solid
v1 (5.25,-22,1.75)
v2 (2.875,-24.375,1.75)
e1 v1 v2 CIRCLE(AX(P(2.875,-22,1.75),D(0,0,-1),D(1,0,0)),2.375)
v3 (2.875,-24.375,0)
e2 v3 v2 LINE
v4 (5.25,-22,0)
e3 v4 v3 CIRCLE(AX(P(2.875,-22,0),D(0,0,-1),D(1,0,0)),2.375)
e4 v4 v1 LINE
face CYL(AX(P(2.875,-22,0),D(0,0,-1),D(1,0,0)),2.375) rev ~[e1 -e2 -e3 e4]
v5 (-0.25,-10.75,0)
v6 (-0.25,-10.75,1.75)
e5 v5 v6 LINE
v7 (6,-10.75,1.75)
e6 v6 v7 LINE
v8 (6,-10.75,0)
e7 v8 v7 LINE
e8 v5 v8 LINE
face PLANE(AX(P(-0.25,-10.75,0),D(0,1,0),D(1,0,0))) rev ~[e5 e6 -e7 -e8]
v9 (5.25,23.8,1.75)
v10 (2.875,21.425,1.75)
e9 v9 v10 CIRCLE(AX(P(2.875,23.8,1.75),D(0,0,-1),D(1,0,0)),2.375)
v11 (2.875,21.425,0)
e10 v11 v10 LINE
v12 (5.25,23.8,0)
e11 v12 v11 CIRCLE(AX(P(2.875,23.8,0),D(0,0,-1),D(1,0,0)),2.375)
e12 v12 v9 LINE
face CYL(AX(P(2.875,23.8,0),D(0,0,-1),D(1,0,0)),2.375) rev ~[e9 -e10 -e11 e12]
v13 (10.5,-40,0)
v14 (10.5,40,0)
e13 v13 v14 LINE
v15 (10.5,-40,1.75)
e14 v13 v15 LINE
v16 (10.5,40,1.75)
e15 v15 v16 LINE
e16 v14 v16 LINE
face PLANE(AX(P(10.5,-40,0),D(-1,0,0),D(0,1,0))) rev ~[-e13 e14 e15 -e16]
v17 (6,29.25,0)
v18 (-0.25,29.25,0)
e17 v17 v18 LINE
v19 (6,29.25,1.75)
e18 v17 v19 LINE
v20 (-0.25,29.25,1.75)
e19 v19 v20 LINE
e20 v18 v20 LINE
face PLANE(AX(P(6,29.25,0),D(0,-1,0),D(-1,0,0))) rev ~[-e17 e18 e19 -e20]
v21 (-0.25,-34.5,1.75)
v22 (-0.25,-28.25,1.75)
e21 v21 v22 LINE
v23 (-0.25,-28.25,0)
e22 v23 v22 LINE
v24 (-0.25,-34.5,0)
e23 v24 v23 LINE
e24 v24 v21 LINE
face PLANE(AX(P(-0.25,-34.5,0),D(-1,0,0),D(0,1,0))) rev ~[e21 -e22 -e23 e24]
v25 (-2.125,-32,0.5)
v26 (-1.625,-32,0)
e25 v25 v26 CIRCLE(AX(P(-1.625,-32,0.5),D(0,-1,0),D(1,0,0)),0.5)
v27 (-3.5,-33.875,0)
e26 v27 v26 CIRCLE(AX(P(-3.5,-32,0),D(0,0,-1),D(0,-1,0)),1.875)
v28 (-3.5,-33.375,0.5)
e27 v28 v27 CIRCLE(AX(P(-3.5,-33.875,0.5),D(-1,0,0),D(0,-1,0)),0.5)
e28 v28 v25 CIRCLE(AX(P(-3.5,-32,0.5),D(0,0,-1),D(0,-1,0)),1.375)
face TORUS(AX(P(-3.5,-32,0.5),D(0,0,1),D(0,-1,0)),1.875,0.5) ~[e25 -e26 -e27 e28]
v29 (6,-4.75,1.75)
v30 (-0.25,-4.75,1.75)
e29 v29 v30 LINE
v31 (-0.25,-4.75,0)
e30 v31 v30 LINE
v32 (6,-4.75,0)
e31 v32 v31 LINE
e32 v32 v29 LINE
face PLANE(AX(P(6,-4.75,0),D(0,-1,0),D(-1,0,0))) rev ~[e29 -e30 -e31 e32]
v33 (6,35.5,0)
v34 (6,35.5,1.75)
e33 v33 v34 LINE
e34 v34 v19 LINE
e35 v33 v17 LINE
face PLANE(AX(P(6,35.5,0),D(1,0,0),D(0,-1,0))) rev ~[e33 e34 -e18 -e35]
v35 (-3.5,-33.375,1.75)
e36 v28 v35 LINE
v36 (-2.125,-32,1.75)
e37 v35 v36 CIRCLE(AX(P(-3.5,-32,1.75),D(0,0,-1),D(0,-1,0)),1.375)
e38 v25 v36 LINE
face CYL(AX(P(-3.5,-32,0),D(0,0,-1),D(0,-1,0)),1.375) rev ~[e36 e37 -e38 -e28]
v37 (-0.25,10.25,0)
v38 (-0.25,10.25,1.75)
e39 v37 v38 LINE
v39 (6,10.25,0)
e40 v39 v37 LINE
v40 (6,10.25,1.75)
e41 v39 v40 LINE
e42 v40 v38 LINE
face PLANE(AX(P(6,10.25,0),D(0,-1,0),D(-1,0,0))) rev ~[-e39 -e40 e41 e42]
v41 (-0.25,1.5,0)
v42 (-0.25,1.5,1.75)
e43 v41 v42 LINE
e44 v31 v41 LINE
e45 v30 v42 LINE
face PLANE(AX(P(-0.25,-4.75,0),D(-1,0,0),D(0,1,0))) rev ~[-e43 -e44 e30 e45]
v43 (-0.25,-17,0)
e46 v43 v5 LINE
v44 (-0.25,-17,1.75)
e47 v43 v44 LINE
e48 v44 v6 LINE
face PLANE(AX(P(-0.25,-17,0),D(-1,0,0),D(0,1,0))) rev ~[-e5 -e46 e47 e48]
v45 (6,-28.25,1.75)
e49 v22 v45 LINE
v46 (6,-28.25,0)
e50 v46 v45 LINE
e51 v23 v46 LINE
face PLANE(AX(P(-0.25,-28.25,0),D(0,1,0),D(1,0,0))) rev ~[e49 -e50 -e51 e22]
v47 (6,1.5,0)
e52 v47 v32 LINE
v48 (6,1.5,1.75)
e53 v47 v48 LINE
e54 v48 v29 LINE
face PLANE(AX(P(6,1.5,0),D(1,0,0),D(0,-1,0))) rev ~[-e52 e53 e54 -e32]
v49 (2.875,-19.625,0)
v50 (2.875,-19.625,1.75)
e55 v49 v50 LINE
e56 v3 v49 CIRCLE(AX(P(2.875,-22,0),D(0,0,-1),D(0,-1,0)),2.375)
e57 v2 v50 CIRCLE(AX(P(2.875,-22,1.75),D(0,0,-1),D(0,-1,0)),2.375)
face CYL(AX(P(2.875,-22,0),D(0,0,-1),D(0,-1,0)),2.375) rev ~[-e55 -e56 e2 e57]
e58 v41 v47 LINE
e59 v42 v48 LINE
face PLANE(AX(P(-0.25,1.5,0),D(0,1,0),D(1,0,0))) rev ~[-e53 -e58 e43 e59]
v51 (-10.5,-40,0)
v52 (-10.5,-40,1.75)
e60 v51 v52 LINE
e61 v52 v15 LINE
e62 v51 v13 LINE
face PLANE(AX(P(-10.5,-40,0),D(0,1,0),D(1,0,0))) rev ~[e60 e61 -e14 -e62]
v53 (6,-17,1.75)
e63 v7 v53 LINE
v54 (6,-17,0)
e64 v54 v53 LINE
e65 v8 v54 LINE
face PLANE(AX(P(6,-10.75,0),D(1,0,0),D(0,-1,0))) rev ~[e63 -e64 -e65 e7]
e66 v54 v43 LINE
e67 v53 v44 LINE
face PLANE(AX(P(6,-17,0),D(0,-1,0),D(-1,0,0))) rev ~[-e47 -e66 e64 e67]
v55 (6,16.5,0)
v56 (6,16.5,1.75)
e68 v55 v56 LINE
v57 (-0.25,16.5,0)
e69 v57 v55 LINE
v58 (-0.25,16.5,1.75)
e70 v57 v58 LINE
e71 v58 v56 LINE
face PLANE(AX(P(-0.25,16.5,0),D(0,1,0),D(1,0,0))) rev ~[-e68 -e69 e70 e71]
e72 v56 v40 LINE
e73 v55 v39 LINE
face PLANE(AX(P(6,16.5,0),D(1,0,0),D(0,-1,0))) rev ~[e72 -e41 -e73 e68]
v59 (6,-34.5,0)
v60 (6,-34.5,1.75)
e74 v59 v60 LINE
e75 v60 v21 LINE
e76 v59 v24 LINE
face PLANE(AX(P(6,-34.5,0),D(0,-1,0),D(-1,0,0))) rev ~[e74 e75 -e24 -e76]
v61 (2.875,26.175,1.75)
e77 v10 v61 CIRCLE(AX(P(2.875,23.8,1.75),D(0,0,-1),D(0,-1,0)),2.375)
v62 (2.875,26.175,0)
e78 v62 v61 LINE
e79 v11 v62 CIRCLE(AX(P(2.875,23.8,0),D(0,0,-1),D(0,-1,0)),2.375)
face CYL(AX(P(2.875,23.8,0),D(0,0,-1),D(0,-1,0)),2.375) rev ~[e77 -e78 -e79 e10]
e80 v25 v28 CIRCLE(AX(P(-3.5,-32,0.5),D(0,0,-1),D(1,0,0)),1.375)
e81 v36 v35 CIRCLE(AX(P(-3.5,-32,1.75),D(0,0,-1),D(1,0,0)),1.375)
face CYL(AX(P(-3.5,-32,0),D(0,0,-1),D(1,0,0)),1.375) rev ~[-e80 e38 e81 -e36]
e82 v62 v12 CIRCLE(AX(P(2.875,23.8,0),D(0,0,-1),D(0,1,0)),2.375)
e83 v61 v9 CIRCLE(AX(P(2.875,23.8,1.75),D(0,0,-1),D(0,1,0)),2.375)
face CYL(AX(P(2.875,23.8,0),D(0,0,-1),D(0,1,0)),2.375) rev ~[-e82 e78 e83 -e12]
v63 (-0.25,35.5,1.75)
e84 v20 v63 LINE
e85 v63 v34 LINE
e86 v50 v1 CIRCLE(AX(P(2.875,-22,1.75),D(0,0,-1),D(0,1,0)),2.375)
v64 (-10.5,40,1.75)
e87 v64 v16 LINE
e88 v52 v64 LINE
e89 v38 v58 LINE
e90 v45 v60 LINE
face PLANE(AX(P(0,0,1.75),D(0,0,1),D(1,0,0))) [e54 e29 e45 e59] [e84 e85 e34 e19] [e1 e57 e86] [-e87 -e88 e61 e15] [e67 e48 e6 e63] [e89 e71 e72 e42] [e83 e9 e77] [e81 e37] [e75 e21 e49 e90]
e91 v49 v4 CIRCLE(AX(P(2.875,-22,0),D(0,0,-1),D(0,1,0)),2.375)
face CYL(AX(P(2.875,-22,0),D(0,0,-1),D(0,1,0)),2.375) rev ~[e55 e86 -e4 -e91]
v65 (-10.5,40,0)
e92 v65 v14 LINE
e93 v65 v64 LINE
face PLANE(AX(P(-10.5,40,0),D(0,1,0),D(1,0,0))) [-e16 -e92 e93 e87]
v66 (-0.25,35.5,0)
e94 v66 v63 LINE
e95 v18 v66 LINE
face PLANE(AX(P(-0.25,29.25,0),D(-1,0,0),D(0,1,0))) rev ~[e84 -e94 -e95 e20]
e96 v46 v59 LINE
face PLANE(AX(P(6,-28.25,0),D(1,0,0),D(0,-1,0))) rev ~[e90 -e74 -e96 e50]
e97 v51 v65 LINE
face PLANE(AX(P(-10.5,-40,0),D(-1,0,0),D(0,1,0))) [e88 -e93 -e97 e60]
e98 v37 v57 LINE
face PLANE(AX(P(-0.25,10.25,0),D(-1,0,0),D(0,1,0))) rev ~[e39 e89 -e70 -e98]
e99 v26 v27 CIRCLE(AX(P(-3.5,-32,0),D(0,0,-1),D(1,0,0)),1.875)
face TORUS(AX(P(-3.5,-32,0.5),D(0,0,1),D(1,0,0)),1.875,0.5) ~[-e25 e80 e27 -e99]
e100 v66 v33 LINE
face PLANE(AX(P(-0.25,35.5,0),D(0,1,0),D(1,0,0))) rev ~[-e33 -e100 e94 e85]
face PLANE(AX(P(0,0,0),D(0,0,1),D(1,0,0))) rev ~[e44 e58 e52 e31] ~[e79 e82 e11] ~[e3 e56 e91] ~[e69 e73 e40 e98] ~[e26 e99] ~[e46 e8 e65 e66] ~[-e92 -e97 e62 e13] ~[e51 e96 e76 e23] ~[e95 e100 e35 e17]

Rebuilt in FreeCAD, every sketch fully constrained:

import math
import FreeCAD as App
import Part
import Sketcher


def edges_at(feature, points):
    """Names of the edges that pass closest to the given points."""
    edges = feature.Shape.Edges
    near = lambda p: min(range(len(edges)), key=lambda i: edges[i].distToShape(Part.Vertex(*p))[0])
    return sorted({f"Edge{near(p) + 1}" for p in points})


def add_polygon(sketch, points):
    """Adds a closed chain of lines whose ends are joined by coincident constraints."""
    first, n = sketch.GeometryCount, len(points)
    for a, b in zip(points, points[1:] + points[:1]):
        sketch.addGeometry(Part.LineSegment(App.Vector(*a, 0), App.Vector(*b, 0)), False)
    for i in range(n):
        sketch.addConstraint(Sketcher.Constraint("Coincident", first + i, 2, first + (i + 1) % n, 1))

doc = App.newDocument("Part")
body = doc.addObject("PartDesign::Body", "Body")

sketch1 = body.newObject("Sketcher::SketchObject", "Sketch")
sketch1.AttachmentSupport = (doc.getObject("XY_Plane"), [""])
sketch1.MapMode = "FlatFace"
add_polygon(sketch1, [(-10.5, 40), (-10.5, -40), (10.5, -40), (10.5, 40)])
sketch1.addGeometry(Part.ArcOfCircle(Part.Circle(App.Vector(-3.5, -32, 0), App.Vector(0, 0, 1), 1.4), math.radians(0), math.radians(270)), False)
sketch1.addGeometry(Part.ArcOfCircle(Part.Circle(App.Vector(-3.5, -32, 0), App.Vector(0, 0, 1), 1.4), math.radians(-90), math.radians(0)), False)
add_polygon(sketch1, [(-0.2, -34.5), (-0.2, -28.2), (6, -28.2), (6, -34.5)])
sketch1.addGeometry(Part.ArcOfCircle(Part.Circle(App.Vector(2.9, -22, 0), App.Vector(0, 0, 1), 2.4), math.radians(0), math.radians(90)), False)
sketch1.addGeometry(Part.ArcOfCircle(Part.Circle(App.Vector(2.9, -22, 0), App.Vector(0, 0, 1), 2.4), math.radians(-90), math.radians(0)), False)
sketch1.addGeometry(Part.ArcOfCircle(Part.Circle(App.Vector(2.9, -22, 0), App.Vector(0, 0, 1), 2.4), math.radians(90), math.radians(270)), False)
add_polygon(sketch1, [(6, -10.8), (6, -17), (-0.2, -17), (-0.2, -10.8)])
add_polygon(sketch1, [(-0.2, -4.8), (-0.2, 1.5), (6, 1.5), (6, -4.8)])
add_polygon(sketch1, [(-0.2, 10.2), (-0.2, 16.5), (6, 16.5), (6, 10.2)])
sketch1.addGeometry(Part.ArcOfCircle(Part.Circle(App.Vector(2.9, 23.8, 0), App.Vector(0, 0, 1), 2.4), math.radians(-90), math.radians(0)), False)
sketch1.addGeometry(Part.ArcOfCircle(Part.Circle(App.Vector(2.9, 23.8, 0), App.Vector(0, 0, 1), 2.4), math.radians(90), math.radians(270)), False)
sketch1.addGeometry(Part.ArcOfCircle(Part.Circle(App.Vector(2.9, 23.8, 0), App.Vector(0, 0, 1), 2.4), math.radians(0), math.radians(90)), False)
add_polygon(sketch1, [(6, 35.5), (6, 29.2), (-0.2, 29.2), (-0.2, 35.5)])
sketch1.addConstraint(Sketcher.Constraint("Tangent", 4, 1, 5, 2))
sketch1.addConstraint(Sketcher.Constraint("Coincident", 5, 1, 4, 2))
sketch1.addConstraint(Sketcher.Constraint("Tangent", 10, 1, 11, 2))
sketch1.addConstraint(Sketcher.Constraint("Tangent", 11, 1, 12, 2))
sketch1.addConstraint(Sketcher.Constraint("Tangent", 12, 1, 10, 2))
sketch1.addConstraint(Sketcher.Constraint("Tangent", 25, 1, 26, 2))
sketch1.addConstraint(Sketcher.Constraint("Tangent", 26, 1, 27, 2))
sketch1.addConstraint(Sketcher.Constraint("Tangent", 27, 1, 25, 2))
sketch1.addConstraint(Sketcher.Constraint("Vertical", 0))
sketch1.addConstraint(Sketcher.Constraint("Horizontal", 1))
sketch1.addConstraint(Sketcher.Constraint("Vertical", 2))
sketch1.addConstraint(Sketcher.Constraint("Horizontal", 3))
sketch1.addConstraint(Sketcher.Constraint("Vertical", 6))
sketch1.addConstraint(Sketcher.Constraint("Horizontal", 7))
sketch1.addConstraint(Sketcher.Constraint("Vertical", 8))
sketch1.addConstraint(Sketcher.Constraint("Horizontal", 9))
sketch1.addConstraint(Sketcher.Constraint("Vertical", 13))
sketch1.addConstraint(Sketcher.Constraint("Horizontal", 14))
sketch1.addConstraint(Sketcher.Constraint("Vertical", 15))
sketch1.addConstraint(Sketcher.Constraint("Horizontal", 16))
sketch1.addConstraint(Sketcher.Constraint("Vertical", 17))
sketch1.addConstraint(Sketcher.Constraint("Horizontal", 18))
sketch1.addConstraint(Sketcher.Constraint("Vertical", 19))
sketch1.addConstraint(Sketcher.Constraint("Horizontal", 20))
sketch1.addConstraint(Sketcher.Constraint("Vertical", 21))
sketch1.addConstraint(Sketcher.Constraint("Horizontal", 22))
sketch1.addConstraint(Sketcher.Constraint("Vertical", 23))
sketch1.addConstraint(Sketcher.Constraint("Horizontal", 24))
sketch1.addConstraint(Sketcher.Constraint("Vertical", 28))
sketch1.addConstraint(Sketcher.Constraint("Horizontal", 29))
sketch1.addConstraint(Sketcher.Constraint("Vertical", 30))
sketch1.addConstraint(Sketcher.Constraint("Horizontal", 31))
sketch1.addConstraint(Sketcher.Constraint("Equal", 12, 25))
sketch1.addConstraint(Sketcher.Constraint("Symmetric", 0, 2, 2, 2, -1, 1))
sketch1.addConstraint(Sketcher.Constraint("Horizontal", 5, 3, 4, 1))
sketch1.addConstraint(Sketcher.Constraint("Horizontal", 12, 3, 10, 1))
sketch1.addConstraint(Sketcher.Constraint("Horizontal", 26, 3, 27, 1))
sketch1.addConstraint(Sketcher.Constraint("Vertical", 12, 3, 25, 3))
sketch1.addConstraint(Sketcher.Constraint("Vertical", 4, 3, 5, 1))
sketch1.addConstraint(Sketcher.Constraint("Vertical", 27, 3, 11, 1))
sketch1.addConstraint(Sketcher.Constraint("Vertical", 11, 1, 12, 1))
sketch1.addConstraint(Sketcher.Constraint("Vertical", 8, 2, 13, 2))
sketch1.addConstraint(Sketcher.Constraint("Vertical", 9, 2, 14, 2))
sketch1.addConstraint(Sketcher.Constraint("Vertical", 15, 2, 17, 2))
sketch1.addConstraint(Sketcher.Constraint("Vertical", 16, 2, 18, 2))
sketch1.addConstraint(Sketcher.Constraint("Vertical", 20, 2, 21, 2))
sketch1.addConstraint(Sketcher.Constraint("Vertical", 19, 2, 22, 2))
sketch1.addConstraint(Sketcher.Constraint("Vertical", 12, 1, 25, 1))
sketch1.addConstraint(Sketcher.Constraint("Vertical", 25, 1, 26, 1))
sketch1.addConstraint(Sketcher.Constraint("Vertical", 23, 2, 28, 2))
sketch1.addConstraint(Sketcher.Constraint("Vertical", 24, 2, 29, 2))
sketch1.addConstraint(Sketcher.Constraint("Equal", 31, 6))
sketch1.addConstraint(Sketcher.Constraint("Equal", 8, 13))
sketch1.addConstraint(Sketcher.Constraint("Equal", 15, 17))
sketch1.addConstraint(Sketcher.Constraint("Equal", 19, 21))
sketch1.addConstraint(Sketcher.Constraint("Equal", 23, 28))
sketch1.addConstraint(Sketcher.Constraint("DistanceX", 1, 1, 1, 2, 21.0))
sketch1.addConstraint(Sketcher.Constraint("DistanceY", 0, 2, 0, 1, 80.0))
sketch1.addConstraint(Sketcher.Constraint("DistanceY", 4, 3, -1, 1, 32.0))
sketch1.addConstraint(Sketcher.Constraint("DistanceY", 10, 3, -1, 1, 22.0))
sketch1.addConstraint(Sketcher.Constraint("DistanceX", -1, 1, 7, 2, 6.0))
sketch1.addConstraint(Sketcher.Constraint("DistanceY", 13, 2, -1, 1, 17.0))
sketch1.addConstraint(Sketcher.Constraint("Radius", 4, 1.375))
sketch1.addConstraint(Sketcher.Constraint("Radius", 10, 2.375))
sketch1.addConstraint(Sketcher.Constraint("DistanceX", 0, 2, 4, 3, 7.0))
sketch1.addConstraint(Sketcher.Constraint("DistanceX", 4, 1, 10, 3, 5.0))
sketch1.addConstraint(Sketcher.Constraint("DistanceY", 16, 2, 19, 2, 6.0))
sketch1.addConstraint(Sketcher.Constraint("DistanceY", 17, 2, 21, 2, 15.0))
sketch1.addConstraint(Sketcher.Constraint("DistanceX", 7, 1, 7, 2, 6.25))
sketch1.addConstraint(Sketcher.Constraint("DistanceY", -1, 1, 25, 3, 23.8))
sketch1.addConstraint(Sketcher.Constraint("DistanceY", 8, 2, -1, 1, 34.5))
sketch1.addConstraint(Sketcher.Constraint("DistanceY", -1, 1, 30, 2, 35.5))
pad1 = body.newObject("PartDesign::Pad", "Pad")
pad1.Profile = sketch1
pad1.Length = 1.75
doc.recompute()

fillet = body.newObject("PartDesign::Fillet", "Fillet")
fillet.Base = (pad1, edges_at(pad1, [(-4.472, -31.028, 0)]))
fillet.Radius = 0.5

doc.recompute()
